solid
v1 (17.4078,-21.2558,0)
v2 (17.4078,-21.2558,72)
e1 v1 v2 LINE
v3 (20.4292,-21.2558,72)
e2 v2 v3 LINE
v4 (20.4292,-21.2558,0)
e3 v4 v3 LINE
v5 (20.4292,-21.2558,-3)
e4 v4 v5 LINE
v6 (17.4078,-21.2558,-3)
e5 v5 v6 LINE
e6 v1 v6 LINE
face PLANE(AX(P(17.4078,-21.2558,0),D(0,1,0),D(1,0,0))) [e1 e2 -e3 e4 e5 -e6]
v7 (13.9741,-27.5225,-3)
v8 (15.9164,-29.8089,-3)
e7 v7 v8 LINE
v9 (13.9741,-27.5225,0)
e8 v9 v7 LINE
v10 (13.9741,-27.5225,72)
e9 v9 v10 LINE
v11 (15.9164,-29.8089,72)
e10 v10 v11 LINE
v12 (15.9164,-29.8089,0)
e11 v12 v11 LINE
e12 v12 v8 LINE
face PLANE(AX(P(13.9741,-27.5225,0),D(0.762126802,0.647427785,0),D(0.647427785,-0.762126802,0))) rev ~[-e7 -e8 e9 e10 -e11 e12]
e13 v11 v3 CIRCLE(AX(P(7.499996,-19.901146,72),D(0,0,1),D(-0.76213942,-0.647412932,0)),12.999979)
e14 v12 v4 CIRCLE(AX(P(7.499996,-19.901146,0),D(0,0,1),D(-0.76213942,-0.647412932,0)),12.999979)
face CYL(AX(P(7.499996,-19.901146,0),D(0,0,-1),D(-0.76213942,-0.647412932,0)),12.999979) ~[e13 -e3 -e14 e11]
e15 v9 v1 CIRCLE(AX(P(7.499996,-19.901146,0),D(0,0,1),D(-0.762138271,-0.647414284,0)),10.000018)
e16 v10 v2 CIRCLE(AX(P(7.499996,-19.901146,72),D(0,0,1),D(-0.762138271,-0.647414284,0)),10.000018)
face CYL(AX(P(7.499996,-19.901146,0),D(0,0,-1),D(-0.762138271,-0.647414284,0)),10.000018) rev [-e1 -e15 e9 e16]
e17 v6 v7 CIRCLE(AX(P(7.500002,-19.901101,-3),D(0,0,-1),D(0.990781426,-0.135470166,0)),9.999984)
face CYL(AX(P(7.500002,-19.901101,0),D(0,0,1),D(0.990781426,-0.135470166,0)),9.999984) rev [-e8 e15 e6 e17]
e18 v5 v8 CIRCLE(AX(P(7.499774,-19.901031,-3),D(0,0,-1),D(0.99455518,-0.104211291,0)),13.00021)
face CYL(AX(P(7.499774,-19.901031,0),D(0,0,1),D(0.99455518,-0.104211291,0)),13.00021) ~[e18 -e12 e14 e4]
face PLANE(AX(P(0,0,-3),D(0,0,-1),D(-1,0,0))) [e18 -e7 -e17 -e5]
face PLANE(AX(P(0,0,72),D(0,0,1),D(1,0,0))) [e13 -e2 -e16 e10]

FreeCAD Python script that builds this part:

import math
import FreeCAD as App
import Part
import Sketcher
from FreeCAD import Vector

doc = App.newDocument("Part")
body = doc.addObject("PartDesign::Body", "Body")

# Sketch on XY plane
sketch1 = body.newObject("Sketcher::SketchObject", "Sketch")
sketch1.AttachmentSupport = (doc.getObject("XY_Plane"), [""])
sketch1.MapMode = "FlatFace"
sketch1.addGeometry([
    Part.LineSegment(Vector(20.4292, -21.2558, 0), Vector(17.4078, -21.2558, 0)),
    Part.ArcOfCircle(Part.Circle(Vector(7.5, -19.9011, 0), Vector(0, 0, 1), 10.00005), math.radians(-49.653319), math.radians(-7.78581)),
    Part.LineSegment(Vector(13.9741, -27.5225, 0), Vector(15.9164, -29.8089, 0)),
    Part.ArcOfCircle(Part.Circle(Vector(7.5, -19.9011, 0), Vector(0, 0, 1), 13.000011), math.radians(-49.653027), math.radians(-5.98153)),
], False)
sketch1.addConstraint([
    Sketcher.Constraint("Coincident", 0, 2, 1, 2),
    Sketcher.Constraint("Coincident", 1, 1, 2, 1),
    Sketcher.Constraint("Coincident", 2, 2, 3, 1),
    Sketcher.Constraint("Coincident", 3, 2, 0, 1),
    Sketcher.Constraint("Horizontal", 0),
    Sketcher.Constraint("Coincident", 3, 3, 1, 3),
    Sketcher.Constraint("Distance", 2, 3.0),
    Sketcher.Constraint("Radius", 1, 10.0),
    Sketcher.Constraint("DistanceX", -1, 1, 1, 3, 7.5),
    Sketcher.Constraint("DistanceX", 0, 2, 0, 1, 3.0214),
    Sketcher.Constraint("DistanceY", 1, 3, -1, 1, 19.901),
    Sketcher.Constraint("DistanceY", 2, 2, -1, 1, 29.809),
    Sketcher.Constraint("DistanceX", 1, 1, 3, 2, 6.455),
])
pad1 = body.newObject("PartDesign::Pad", "Pad")
pad1.Profile = sketch1
pad1.Length = 72

# Sketch on XY plane
sketch2 = body.newObject("Sketcher::SketchObject", "Sketch001")
sketch2.AttachmentSupport = (doc.getObject("XY_Plane"), [""])
sketch2.MapMode = "FlatFace"
sketch2.addGeometry([
    Part.LineSegment(Vector(15.9164, -29.8089, 0), Vector(13.9741, -27.5225, 0)),
    Part.ArcOfCircle(Part.Circle(Vector(7.5, -19.9011, 0), Vector(0, 0, 1), 9.999986), math.radians(-49.653319), math.radians(-7.78581)),
    Part.LineSegment(Vector(17.4078, -21.2558, 0), Vector(20.4292, -21.2558, 0)),
    Part.ArcOfCircle(Part.Circle(Vector(7.5, -19.9011, 0), Vector(0, 0, 1), 12.999978), math.radians(-49.653027), math.radians(-5.98153)),
], False)
sketch2.addConstraint([
    Sketcher.Constraint("Coincident", 0, 2, 1, 1),
    Sketcher.Constraint("Coincident", 1, 2, 2, 1),
    Sketcher.Constraint("Coincident", 2, 2, 3, 2),
    Sketcher.Constraint("Coincident", 3, 1, 0, 1),
    Sketcher.Constraint("Horizontal", 2),
    Sketcher.Constraint("Coincident", 3, 3, 1, 3),
    Sketcher.Constraint("Radius", 1, 10.0),
    Sketcher.Constraint("Radius", 3, 13.0),
    Sketcher.Constraint("DistanceX", -1, 1, 1, 3, 7.5),
    Sketcher.Constraint("DistanceX", 2, 1, 2, 2, 3.0214),
    Sketcher.Constraint("DistanceY", 1, 3, -1, 1, 19.901),
    Sketcher.Constraint("DistanceX", -1, 1, 0, 2, 13.974),
    Sketcher.Constraint("DistanceY", 3, 1, 1, 2, 8.553),
])
pad2 = body.newObject("PartDesign::Pad", "Pad001")
pad2.Profile = sketch2
pad2.Length = 3
pad2.Reversed = True

doc.recompute()
